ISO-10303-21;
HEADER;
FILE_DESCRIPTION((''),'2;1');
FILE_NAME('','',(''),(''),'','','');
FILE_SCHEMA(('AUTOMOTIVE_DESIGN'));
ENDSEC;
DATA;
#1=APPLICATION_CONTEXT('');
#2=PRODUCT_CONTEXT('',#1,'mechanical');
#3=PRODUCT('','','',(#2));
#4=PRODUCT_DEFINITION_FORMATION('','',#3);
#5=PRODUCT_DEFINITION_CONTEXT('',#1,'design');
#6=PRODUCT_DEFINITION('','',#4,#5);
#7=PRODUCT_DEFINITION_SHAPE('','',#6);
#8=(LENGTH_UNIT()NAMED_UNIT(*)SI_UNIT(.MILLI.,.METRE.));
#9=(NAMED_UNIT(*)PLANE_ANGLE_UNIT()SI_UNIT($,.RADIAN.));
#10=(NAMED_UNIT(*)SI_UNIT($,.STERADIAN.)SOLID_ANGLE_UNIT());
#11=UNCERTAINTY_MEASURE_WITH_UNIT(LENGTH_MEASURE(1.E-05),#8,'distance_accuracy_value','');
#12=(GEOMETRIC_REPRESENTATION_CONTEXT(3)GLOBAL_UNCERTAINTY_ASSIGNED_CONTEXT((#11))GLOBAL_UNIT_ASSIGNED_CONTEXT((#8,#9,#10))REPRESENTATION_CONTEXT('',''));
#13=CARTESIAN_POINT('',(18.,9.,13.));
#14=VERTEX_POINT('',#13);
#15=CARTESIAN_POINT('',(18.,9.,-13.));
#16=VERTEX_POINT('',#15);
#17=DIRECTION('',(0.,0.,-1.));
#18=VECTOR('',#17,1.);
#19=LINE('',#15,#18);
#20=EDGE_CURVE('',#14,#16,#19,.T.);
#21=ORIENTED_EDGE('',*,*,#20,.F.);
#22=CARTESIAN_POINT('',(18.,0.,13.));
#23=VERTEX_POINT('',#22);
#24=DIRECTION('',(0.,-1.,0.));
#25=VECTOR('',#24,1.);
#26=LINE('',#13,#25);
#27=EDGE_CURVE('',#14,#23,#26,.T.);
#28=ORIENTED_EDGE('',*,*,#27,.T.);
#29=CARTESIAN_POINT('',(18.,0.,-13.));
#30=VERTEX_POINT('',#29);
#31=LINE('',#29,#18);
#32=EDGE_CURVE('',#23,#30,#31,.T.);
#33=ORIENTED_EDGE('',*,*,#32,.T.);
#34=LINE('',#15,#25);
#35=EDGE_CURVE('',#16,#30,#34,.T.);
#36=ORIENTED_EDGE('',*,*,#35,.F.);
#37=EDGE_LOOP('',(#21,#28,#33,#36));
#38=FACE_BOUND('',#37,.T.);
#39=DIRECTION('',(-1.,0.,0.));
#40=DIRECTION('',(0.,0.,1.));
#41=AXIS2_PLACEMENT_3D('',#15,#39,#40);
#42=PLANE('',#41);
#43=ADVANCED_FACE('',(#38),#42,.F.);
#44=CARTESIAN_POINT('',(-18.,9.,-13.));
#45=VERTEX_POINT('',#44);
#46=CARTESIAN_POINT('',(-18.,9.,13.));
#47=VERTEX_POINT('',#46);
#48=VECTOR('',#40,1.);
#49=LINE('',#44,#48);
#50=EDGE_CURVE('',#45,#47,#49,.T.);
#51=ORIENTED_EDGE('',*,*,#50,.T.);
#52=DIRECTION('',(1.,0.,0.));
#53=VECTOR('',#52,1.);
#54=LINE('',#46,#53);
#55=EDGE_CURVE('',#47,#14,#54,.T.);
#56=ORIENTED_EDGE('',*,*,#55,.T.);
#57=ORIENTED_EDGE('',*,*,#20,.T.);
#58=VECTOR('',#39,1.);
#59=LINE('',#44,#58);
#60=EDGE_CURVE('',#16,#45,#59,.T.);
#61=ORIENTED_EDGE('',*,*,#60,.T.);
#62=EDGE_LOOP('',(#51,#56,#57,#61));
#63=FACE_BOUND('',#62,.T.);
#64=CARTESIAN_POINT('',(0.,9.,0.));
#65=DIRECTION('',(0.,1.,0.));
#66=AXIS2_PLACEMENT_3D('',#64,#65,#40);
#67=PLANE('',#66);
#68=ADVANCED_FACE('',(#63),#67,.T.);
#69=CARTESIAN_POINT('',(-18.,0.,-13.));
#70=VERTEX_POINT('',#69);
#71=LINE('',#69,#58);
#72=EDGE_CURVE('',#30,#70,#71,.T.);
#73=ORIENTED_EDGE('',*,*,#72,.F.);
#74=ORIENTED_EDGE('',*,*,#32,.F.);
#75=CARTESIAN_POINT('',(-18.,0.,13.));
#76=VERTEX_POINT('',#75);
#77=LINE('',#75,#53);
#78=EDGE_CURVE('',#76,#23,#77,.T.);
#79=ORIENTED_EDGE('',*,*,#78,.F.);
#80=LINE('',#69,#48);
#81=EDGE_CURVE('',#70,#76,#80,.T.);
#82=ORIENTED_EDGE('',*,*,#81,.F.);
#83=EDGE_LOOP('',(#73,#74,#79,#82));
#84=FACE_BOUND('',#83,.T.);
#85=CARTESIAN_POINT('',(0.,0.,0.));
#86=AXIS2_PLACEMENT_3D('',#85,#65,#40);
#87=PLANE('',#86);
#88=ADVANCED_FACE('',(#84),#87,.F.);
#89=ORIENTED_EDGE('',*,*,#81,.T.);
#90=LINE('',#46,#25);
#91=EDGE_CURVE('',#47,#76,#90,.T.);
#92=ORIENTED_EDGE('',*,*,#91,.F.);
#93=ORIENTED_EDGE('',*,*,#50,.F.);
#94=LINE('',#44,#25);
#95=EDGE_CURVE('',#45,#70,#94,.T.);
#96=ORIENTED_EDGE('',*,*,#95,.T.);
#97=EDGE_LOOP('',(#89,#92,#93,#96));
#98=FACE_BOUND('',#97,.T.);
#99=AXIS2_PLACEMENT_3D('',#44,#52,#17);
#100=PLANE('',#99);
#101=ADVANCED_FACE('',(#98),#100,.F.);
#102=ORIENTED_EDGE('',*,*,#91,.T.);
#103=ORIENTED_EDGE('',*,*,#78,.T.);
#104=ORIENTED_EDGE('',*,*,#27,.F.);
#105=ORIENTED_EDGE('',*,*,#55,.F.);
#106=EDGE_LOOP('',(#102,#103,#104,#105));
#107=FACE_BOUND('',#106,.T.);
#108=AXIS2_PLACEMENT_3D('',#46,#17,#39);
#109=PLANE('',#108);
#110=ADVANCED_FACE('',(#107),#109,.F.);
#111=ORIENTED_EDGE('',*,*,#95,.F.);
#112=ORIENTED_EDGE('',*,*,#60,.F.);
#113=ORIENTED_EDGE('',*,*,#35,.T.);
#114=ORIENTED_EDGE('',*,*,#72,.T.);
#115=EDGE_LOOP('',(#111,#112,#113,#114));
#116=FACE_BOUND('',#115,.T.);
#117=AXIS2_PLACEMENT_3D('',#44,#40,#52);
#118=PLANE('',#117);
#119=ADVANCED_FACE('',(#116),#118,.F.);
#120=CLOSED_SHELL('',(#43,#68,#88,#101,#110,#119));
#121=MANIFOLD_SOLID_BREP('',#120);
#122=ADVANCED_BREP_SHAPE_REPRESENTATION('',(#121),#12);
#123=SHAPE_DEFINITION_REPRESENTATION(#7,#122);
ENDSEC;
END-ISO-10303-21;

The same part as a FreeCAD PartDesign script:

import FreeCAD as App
import Part
import Sketcher
from FreeCAD import Vector


def add_polygon(sketch, points):
    """Adds a closed chain of lines whose ends are joined by coincident constraints."""
    first, n = sketch.GeometryCount, len(points)
    for a, b in zip(points, points[1:] + points[:1]):
        sketch.addGeometry(Part.LineSegment(App.Vector(*a, 0), App.Vector(*b, 0)), False)
    for i in range(n):
        sketch.addConstraint(Sketcher.Constraint("Coincident", first + i, 2, first + (i + 1) % n, 1))

doc = App.newDocument("Part")
body = doc.addObject("PartDesign::Body", "Body")

sketch1 = body.newObject("Sketcher::SketchObject", "Sketch")
sketch1.AttachmentSupport = (doc.getObject("XZ_Plane"), [""])
sketch1.MapMode = "FlatFace"
add_polygon(sketch1, [(-18, -13), (-18, 13), (18, 13), (18, -13)])
sketch1.addConstraint([
    Sketcher.Constraint("Vertical", 0),
    Sketcher.Constraint("Horizontal", 1),
    Sketcher.Constraint("Vertical", 2),
    Sketcher.Constraint("Horizontal", 3),
    Sketcher.Constraint("Symmetric", 0, 2, 2, 2, -1, 1),
    Sketcher.Constraint("DistanceX", 1, 1, 1, 2, 36.0),
    Sketcher.Constraint("DistanceY", 0, 1, 0, 2, 26.0),
])
pad1 = body.newObject("PartDesign::Pad", "Pad")
pad1.Profile = sketch1
pad1.Length = 9
pad1.Reversed = True

doc.recompute()
